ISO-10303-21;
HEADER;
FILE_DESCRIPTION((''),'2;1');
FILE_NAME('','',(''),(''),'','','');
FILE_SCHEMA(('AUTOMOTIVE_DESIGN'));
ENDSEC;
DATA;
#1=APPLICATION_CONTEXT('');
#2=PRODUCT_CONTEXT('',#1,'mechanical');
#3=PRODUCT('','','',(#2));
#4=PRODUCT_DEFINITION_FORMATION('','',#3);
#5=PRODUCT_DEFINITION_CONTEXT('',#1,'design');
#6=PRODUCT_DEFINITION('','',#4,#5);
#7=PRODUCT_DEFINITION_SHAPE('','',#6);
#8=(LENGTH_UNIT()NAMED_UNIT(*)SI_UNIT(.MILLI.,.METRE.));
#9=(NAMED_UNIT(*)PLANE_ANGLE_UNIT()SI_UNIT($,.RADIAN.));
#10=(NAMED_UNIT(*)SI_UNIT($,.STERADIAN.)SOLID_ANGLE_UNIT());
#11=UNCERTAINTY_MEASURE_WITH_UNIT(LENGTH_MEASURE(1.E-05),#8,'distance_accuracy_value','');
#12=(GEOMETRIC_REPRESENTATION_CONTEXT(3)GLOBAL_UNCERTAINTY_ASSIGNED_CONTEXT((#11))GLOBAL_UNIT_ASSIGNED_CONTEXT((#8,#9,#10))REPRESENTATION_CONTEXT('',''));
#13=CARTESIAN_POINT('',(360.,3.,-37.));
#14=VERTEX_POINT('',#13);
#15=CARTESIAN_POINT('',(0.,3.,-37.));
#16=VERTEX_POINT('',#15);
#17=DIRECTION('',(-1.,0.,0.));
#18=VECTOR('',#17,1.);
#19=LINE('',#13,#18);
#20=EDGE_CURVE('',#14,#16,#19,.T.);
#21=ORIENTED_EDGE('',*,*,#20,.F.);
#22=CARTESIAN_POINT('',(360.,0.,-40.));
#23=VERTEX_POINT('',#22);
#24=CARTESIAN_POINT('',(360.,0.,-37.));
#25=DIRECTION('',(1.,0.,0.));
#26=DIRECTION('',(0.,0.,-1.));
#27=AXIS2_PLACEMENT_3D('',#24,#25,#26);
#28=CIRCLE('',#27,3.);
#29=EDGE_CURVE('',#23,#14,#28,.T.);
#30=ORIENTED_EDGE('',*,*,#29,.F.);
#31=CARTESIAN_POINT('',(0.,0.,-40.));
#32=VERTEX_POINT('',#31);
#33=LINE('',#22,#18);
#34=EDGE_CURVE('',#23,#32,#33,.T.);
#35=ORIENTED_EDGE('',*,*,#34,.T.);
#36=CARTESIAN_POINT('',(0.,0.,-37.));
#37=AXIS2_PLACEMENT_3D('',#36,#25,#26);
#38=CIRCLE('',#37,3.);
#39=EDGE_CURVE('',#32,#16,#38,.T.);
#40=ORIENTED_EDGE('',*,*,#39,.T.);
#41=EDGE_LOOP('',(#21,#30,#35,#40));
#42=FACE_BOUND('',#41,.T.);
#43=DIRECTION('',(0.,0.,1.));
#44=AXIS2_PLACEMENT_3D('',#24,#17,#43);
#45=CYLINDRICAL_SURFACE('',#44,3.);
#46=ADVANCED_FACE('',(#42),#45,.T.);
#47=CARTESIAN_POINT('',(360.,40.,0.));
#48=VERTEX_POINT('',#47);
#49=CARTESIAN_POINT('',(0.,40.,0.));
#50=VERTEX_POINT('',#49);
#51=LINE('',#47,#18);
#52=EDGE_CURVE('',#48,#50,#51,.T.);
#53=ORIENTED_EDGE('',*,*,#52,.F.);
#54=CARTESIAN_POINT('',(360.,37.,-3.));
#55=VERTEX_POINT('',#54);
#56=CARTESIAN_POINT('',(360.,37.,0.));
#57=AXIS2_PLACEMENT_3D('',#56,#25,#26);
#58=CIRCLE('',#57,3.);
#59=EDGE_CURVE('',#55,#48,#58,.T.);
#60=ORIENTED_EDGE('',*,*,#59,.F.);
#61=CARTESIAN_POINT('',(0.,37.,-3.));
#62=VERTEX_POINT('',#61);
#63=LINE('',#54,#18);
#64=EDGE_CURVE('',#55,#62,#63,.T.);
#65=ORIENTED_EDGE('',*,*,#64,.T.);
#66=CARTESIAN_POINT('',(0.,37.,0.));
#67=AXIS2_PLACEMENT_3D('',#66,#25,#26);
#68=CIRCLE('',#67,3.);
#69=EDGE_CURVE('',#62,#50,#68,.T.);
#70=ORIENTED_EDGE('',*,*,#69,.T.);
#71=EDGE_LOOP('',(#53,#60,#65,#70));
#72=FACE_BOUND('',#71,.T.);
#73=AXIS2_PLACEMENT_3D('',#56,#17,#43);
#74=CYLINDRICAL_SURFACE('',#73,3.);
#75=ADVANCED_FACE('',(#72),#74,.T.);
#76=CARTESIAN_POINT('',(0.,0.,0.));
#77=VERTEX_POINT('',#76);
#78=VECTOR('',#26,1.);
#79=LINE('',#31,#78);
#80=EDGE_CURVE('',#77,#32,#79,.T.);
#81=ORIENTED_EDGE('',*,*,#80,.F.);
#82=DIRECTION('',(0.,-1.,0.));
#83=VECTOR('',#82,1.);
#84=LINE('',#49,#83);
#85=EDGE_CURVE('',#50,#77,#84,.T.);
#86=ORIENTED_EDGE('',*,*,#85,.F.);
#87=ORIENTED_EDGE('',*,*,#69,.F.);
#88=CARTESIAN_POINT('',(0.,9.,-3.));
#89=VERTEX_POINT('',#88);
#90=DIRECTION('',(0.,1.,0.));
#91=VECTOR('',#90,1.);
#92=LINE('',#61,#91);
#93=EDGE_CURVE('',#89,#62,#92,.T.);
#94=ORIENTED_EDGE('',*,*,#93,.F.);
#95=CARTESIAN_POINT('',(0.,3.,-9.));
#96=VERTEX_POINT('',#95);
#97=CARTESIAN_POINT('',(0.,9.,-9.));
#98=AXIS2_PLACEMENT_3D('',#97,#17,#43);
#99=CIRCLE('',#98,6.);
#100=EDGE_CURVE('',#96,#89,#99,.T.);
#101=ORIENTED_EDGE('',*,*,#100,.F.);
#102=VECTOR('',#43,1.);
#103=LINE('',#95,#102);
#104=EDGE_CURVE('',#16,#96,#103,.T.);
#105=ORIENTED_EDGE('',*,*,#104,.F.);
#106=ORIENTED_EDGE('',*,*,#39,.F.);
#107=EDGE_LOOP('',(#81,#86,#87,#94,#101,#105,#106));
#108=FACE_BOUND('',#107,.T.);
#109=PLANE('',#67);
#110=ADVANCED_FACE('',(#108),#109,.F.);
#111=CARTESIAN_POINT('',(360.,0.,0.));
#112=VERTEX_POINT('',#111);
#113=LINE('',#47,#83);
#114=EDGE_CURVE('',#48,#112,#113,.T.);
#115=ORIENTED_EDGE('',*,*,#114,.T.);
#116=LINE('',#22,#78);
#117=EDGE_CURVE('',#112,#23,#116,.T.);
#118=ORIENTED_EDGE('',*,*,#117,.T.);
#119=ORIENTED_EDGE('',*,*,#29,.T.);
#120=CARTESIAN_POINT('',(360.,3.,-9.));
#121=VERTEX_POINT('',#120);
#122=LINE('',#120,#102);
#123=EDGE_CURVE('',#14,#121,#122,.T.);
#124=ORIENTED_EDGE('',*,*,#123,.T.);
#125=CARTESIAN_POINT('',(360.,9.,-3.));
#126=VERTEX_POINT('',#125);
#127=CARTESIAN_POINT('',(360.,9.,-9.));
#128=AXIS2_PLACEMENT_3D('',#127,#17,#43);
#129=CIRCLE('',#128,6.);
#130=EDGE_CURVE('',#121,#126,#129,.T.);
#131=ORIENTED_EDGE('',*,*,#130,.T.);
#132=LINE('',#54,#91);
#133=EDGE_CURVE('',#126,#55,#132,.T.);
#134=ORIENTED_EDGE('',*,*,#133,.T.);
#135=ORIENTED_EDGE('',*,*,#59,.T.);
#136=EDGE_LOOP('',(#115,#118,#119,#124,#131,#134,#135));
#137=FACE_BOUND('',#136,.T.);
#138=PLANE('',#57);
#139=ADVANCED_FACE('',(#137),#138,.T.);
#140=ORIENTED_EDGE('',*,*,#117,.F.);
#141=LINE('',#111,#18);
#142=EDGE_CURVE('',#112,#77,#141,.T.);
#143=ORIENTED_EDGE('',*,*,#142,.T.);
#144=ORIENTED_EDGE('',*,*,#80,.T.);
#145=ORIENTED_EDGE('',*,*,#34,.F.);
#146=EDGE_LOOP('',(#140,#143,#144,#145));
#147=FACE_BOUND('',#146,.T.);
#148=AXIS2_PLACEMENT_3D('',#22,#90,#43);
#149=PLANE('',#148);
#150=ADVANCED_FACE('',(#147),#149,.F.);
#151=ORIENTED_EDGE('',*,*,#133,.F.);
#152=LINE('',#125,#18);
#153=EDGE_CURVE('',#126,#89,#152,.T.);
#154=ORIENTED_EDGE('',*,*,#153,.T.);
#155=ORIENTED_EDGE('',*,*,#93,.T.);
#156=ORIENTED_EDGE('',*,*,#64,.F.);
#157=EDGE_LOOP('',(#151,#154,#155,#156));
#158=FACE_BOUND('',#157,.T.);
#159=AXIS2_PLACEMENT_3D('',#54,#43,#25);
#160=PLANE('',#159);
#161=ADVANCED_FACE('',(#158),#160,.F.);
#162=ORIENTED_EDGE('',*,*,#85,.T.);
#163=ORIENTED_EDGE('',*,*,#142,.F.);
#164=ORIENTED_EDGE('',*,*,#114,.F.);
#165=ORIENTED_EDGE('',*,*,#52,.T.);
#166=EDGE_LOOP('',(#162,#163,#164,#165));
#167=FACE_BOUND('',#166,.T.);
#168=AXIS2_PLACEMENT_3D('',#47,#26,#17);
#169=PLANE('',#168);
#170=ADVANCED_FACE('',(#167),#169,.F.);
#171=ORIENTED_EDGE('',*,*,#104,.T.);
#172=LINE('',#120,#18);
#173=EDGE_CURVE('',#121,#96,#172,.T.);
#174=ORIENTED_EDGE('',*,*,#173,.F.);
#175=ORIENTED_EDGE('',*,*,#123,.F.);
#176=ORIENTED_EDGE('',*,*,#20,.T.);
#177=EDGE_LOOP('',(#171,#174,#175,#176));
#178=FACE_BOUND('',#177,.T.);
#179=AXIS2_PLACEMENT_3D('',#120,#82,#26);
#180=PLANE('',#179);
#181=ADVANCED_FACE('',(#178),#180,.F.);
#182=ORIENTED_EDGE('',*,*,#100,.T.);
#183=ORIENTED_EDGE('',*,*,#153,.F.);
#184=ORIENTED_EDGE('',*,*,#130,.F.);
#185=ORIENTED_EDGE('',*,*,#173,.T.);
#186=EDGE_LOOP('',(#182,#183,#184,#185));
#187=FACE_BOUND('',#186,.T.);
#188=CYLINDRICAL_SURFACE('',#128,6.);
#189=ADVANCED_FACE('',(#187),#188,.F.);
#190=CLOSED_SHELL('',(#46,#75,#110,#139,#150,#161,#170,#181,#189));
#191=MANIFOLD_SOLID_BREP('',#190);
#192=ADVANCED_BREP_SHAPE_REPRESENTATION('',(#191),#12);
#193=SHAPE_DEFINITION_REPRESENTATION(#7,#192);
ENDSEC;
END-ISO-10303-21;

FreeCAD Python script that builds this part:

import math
import FreeCAD as App
import Part
import Sketcher
from FreeCAD import Vector

doc = App.newDocument("Part")
body = doc.addObject("PartDesign::Body", "Body")

# Sketch on YZ plane
sketch1 = body.newObject("Sketcher::SketchObject", "Sketch")
sketch1.AttachmentSupport = (doc.getObject("YZ_Plane"), [""])
sketch1.MapMode = "FlatFace"
sketch1.addGeometry(Part.LineSegment(Vector(40, 0, 0), Vector(0, 0, 0)), False)
sketch1.addGeometry(Part.LineSegment(Vector(0, 0, 0), Vector(0, -40, 0)), False)
sketch1.addGeometry(Part.ArcOfCircle(Part.Circle(Vector(0, -37, 0), Vector(0, 0, 1), 3), math.radians(-90), math.radians(0)), False)
sketch1.addGeometry(Part.LineSegment(Vector(3, -37, 0), Vector(3, -9, 0)), False)
sketch1.addGeometry(Part.ArcOfCircle(Part.Circle(Vector(9, -9, 0), Vector(0, 0, 1), 6), math.radians(90), math.radians(180)), False)
sketch1.addGeometry(Part.LineSegment(Vector(9, -3, 0), Vector(37, -3, 0)), False)
sketch1.addGeometry(Part.ArcOfCircle(Part.Circle(Vector(37, 0, 0), Vector(0, 0, 1), 3), math.radians(-90), math.radians(0)), False)
sketch1.addConstraint(Sketcher.Constraint("Coincident", 0, 2, 1, 1))
sketch1.addConstraint(Sketcher.Constraint("Coincident", 1, 2, 2, 1))
sketch1.addConstraint(Sketcher.Constraint("Tangent", 2, 2, 3, 1))
sketch1.addConstraint(Sketcher.Constraint("Tangent", 3, 2, 4, 2))
sketch1.addConstraint(Sketcher.Constraint("Tangent", 4, 1, 5, 1))
sketch1.addConstraint(Sketcher.Constraint("Tangent", 5, 2, 6, 1))
sketch1.addConstraint(Sketcher.Constraint("Coincident", 6, 2, 0, 1))
sketch1.addConstraint(Sketcher.Constraint("Horizontal", 0))
sketch1.addConstraint(Sketcher.Constraint("Vertical", 1))
sketch1.addConstraint(Sketcher.Constraint("Vertical", 3))
sketch1.addConstraint(Sketcher.Constraint("Horizontal", 5))
sketch1.addConstraint(Sketcher.Constraint("Coincident", 0, 2, -1, 1))
sketch1.addConstraint(Sketcher.Constraint("Equal", 2, 6))
sketch1.addConstraint(Sketcher.Constraint("PointOnObject", 2, 3, -2))
sketch1.addConstraint(Sketcher.Constraint("PointOnObject", 6, 3, -1))
sketch1.addConstraint(Sketcher.Constraint("Equal", 0, 1))
sketch1.addConstraint(Sketcher.Constraint("Radius", 2, 3.0))
sketch1.addConstraint(Sketcher.Constraint("Radius", 4, 6.0))
sketch1.addConstraint(Sketcher.Constraint("DistanceX", 0, 2, 0, 1, 40.0))
pad1 = body.newObject("PartDesign::Pad", "Pad")
pad1.Profile = sketch1
pad1.Length = 360

doc.recompute()
